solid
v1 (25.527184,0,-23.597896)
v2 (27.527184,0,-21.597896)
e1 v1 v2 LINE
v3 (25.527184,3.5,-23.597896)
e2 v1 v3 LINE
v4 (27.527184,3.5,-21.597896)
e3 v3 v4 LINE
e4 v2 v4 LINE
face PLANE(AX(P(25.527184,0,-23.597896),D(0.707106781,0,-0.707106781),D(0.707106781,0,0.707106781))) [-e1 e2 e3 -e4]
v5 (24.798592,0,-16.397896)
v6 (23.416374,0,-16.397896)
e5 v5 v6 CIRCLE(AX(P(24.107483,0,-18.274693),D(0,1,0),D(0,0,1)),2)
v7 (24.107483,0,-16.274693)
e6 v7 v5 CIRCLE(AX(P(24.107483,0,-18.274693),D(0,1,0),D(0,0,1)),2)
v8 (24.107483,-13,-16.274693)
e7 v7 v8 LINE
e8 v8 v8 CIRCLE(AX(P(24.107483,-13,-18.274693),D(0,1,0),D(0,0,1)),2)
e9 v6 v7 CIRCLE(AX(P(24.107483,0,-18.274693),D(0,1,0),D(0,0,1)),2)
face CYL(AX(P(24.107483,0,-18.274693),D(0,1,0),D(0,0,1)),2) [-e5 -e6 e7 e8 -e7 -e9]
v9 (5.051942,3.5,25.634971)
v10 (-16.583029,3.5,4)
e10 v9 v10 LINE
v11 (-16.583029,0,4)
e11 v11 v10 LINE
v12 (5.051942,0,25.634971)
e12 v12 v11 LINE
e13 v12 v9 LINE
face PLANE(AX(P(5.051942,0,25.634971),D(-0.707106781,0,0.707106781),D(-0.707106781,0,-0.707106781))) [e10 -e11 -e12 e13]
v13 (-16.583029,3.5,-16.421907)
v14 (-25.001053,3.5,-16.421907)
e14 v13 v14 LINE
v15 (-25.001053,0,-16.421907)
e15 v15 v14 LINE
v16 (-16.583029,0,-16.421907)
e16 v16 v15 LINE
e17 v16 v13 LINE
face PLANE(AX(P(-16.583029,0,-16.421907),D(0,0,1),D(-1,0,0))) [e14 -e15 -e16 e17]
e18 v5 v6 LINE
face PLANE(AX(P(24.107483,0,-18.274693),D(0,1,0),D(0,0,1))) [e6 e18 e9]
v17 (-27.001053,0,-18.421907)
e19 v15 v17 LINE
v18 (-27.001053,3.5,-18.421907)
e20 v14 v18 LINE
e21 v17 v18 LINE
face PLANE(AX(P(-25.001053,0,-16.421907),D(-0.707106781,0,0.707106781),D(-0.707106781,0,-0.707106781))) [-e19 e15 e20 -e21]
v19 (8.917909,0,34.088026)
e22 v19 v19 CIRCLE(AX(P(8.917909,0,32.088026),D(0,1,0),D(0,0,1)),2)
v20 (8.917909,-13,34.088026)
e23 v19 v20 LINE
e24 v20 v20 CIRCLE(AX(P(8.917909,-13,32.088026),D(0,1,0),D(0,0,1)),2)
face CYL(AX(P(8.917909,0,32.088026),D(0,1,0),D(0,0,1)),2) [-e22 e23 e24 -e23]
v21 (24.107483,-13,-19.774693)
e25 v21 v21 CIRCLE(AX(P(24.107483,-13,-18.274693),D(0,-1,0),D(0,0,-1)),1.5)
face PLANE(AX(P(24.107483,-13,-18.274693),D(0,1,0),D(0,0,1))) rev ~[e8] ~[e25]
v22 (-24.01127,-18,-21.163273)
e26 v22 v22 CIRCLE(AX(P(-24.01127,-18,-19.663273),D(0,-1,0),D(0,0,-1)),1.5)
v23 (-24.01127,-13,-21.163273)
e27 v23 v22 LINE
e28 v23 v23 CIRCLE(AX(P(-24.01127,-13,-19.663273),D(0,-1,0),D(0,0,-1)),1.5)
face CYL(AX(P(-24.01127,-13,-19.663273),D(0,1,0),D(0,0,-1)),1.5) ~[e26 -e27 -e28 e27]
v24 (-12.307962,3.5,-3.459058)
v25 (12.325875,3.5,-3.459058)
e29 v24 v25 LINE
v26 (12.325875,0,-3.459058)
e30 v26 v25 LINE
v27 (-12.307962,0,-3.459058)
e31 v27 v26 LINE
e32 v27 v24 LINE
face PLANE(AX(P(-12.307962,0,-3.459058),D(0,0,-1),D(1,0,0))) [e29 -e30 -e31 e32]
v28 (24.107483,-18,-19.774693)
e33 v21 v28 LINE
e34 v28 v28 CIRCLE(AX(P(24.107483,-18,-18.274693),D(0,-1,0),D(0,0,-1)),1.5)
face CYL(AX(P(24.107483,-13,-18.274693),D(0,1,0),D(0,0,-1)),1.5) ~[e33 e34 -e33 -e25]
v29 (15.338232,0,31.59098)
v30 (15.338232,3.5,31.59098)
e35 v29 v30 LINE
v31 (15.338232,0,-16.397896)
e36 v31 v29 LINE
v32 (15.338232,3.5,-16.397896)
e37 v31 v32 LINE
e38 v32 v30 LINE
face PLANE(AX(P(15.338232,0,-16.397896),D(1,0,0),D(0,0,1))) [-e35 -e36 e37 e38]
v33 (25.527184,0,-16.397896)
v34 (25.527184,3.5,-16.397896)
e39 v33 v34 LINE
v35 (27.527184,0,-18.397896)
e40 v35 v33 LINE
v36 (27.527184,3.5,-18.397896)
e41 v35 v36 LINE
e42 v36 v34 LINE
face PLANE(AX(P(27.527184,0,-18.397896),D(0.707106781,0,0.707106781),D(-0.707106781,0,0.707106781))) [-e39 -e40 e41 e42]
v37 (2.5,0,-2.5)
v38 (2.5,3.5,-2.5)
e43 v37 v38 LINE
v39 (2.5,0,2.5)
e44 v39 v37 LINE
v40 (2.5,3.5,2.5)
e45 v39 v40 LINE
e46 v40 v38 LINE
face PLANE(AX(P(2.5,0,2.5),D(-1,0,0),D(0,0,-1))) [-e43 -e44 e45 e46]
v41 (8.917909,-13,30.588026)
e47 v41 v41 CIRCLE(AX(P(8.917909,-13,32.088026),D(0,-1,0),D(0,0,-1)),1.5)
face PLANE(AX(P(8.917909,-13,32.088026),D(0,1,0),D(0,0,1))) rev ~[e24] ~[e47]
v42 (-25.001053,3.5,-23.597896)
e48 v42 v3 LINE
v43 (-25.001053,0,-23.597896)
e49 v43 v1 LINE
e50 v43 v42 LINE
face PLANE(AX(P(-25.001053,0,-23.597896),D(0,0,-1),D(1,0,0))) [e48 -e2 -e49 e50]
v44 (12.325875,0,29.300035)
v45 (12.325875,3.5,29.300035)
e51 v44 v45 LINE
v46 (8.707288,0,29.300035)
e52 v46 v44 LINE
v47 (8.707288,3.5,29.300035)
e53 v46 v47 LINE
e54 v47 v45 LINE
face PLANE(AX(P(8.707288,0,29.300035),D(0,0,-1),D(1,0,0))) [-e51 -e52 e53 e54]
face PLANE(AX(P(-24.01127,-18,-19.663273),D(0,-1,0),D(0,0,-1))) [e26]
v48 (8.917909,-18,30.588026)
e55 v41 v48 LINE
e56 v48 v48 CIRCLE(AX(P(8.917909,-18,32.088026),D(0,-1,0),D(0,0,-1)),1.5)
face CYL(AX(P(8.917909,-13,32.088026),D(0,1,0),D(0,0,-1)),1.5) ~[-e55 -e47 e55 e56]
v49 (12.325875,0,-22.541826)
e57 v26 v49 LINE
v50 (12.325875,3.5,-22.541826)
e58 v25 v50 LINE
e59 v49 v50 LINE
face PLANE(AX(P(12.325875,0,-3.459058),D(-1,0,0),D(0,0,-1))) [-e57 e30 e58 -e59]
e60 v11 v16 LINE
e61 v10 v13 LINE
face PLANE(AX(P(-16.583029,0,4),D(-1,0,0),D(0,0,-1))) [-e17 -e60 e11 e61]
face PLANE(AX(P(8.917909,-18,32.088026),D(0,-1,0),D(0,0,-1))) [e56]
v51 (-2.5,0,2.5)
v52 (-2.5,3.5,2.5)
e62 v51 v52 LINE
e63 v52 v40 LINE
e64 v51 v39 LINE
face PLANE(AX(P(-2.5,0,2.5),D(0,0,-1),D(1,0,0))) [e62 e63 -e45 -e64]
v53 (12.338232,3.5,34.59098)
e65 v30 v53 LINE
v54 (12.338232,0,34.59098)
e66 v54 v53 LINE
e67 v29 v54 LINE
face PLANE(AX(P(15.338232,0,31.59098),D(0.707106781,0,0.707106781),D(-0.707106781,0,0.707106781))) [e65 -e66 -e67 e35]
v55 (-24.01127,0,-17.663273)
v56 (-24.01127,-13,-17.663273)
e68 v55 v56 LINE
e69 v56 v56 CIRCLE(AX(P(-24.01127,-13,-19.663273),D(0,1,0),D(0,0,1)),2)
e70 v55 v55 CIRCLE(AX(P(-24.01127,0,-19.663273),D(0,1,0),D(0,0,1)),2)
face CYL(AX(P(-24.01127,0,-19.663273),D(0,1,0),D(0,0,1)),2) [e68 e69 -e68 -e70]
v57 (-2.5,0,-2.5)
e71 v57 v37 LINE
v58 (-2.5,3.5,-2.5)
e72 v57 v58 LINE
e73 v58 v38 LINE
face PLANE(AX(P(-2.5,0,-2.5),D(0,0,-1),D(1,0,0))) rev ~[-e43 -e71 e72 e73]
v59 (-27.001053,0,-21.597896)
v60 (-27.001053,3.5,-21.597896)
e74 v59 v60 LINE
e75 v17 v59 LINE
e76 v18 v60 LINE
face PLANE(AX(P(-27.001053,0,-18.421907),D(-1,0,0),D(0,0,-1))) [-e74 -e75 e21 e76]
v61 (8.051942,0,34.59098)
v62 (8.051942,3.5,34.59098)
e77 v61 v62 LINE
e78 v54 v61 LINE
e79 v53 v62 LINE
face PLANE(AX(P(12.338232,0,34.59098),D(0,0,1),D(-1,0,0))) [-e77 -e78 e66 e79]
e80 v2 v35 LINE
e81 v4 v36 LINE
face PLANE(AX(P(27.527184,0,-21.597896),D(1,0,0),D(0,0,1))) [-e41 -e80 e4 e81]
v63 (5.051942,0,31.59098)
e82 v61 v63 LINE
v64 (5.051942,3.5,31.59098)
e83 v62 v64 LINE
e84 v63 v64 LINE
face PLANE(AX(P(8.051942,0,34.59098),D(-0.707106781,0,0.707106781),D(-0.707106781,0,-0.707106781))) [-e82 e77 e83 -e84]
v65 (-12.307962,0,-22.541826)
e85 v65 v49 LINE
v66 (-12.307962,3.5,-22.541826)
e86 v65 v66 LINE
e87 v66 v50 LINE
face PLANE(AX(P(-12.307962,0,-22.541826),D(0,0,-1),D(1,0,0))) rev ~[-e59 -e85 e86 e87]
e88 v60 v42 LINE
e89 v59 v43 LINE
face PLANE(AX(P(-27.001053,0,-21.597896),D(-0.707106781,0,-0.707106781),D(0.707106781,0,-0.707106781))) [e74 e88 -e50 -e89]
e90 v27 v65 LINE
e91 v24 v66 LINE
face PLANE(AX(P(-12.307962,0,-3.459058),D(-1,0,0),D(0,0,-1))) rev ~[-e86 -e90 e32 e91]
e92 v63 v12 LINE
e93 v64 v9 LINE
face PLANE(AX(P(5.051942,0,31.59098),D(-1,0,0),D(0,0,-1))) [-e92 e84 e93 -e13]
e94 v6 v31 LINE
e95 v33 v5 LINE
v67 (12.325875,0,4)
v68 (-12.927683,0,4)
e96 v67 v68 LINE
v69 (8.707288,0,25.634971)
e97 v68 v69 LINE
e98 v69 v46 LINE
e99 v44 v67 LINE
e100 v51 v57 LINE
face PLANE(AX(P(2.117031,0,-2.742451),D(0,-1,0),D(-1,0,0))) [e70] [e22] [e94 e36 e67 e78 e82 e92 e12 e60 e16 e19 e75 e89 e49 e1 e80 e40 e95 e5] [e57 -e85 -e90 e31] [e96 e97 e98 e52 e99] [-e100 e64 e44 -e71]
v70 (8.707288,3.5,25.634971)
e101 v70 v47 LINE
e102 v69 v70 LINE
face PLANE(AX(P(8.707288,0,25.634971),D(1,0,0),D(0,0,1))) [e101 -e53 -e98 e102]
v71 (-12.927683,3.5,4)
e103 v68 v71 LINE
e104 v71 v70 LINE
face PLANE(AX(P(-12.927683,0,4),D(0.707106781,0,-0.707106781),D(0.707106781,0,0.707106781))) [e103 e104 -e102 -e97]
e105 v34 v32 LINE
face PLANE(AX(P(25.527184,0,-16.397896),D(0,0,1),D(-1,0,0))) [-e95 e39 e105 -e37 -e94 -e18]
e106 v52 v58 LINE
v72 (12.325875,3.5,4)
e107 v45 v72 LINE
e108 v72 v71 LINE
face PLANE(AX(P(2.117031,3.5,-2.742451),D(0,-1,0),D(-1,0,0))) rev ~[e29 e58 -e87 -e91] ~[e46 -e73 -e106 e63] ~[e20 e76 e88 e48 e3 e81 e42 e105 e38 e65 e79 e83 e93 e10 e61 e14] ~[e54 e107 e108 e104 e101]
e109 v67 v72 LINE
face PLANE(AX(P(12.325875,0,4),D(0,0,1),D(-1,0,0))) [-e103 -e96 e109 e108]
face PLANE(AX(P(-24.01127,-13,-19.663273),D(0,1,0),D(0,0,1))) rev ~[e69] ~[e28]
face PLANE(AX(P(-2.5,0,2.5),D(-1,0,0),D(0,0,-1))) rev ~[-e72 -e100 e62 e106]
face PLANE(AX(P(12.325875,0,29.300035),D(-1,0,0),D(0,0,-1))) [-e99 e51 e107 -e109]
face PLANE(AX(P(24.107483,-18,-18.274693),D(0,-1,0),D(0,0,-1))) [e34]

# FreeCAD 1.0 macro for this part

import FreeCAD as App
import Part
import Sketcher

doc = App.newDocument("Part")
body = doc.addObject("PartDesign::Body", "Body")

sketch1 = body.newObject("Sketcher::SketchObject", "Sketch")
sketch1.AttachmentSupport = (doc.getObject("XZ_Plane"), [""])
sketch1.MapMode = "FlatFace"
sketch1.addGeometry([
    Part.LineSegment(App.Vector(25.527184, -23.597896, 0), App.Vector(-25.001053, -23.597896, 0)),
    Part.LineSegment(App.Vector(-25.001053, -23.597896, 0), App.Vector(-27.001053, -21.597896, 0)),
    Part.LineSegment(App.Vector(-27.001053, -21.597896, 0), App.Vector(-27.001053, -18.421907, 0)),
    Part.LineSegment(App.Vector(-27.001053, -18.421907, 0), App.Vector(-25.001053, -16.421907, 0)),
    Part.LineSegment(App.Vector(-25.001053, -16.421907, 0), App.Vector(-16.583029, -16.421907, 0)),
    Part.LineSegment(App.Vector(-16.583029, -16.421907, 0), App.Vector(-16.583029, 4, 0)),
    Part.LineSegment(App.Vector(-16.583029, 4, 0), App.Vector(5.051942, 25.634971, 0)),
    Part.LineSegment(App.Vector(5.051942, 25.634971, 0), App.Vector(5.051942, 31.59098, 0)),
    Part.LineSegment(App.Vector(5.051942, 31.59098, 0), App.Vector(8.051942, 34.59098, 0)),
    Part.LineSegment(App.Vector(8.051942, 34.59098, 0), App.Vector(12.338232, 34.59098, 0)),
    Part.LineSegment(App.Vector(12.338232, 34.59098, 0), App.Vector(15.338232, 31.59098, 0)),
    Part.LineSegment(App.Vector(15.338232, 31.59098, 0), App.Vector(15.338232, -16.397896, 0)),
    Part.LineSegment(App.Vector(15.338232, -16.397896, 0), App.Vector(25.527184, -16.397896, 0)),
    Part.LineSegment(App.Vector(25.527184, -16.397896, 0), App.Vector(27.527184, -18.397896, 0)),
    Part.LineSegment(App.Vector(27.527184, -18.397896, 0), App.Vector(27.527184, -21.597896, 0)),
    Part.LineSegment(App.Vector(27.527184, -21.597896, 0), App.Vector(25.527184, -23.597896, 0)),
    Part.LineSegment(App.Vector(-12.927683, 4, 0), App.Vector(12.325875, 4, 0)),
    Part.LineSegment(App.Vector(12.325875, 4, 0), App.Vector(12.325875, 29.300035, 0)),
    Part.LineSegment(App.Vector(12.325875, 29.300035, 0), App.Vector(8.707288, 29.300035, 0)),
    Part.LineSegment(App.Vector(8.707288, 29.300035, 0), App.Vector(8.707288, 25.634971, 0)),
    Part.LineSegment(App.Vector(8.707288, 25.634971, 0), App.Vector(-12.927683, 4, 0)),
    Part.LineSegment(App.Vector(-2.5, 2.5, 0), App.Vector(-2.5, -2.5, 0)),
    Part.LineSegment(App.Vector(-2.5, -2.5, 0), App.Vector(2.5, -2.5, 0)),
    Part.LineSegment(App.Vector(2.5, -2.5, 0), App.Vector(2.5, 2.5, 0)),
    Part.LineSegment(App.Vector(2.5, 2.5, 0), App.Vector(-2.5, 2.5, 0)),
    Part.LineSegment(App.Vector(-12.307962, -3.459058, 0), App.Vector(-12.307962, -22.541826, 0)),
    Part.LineSegment(App.Vector(-12.307962, -22.541826, 0), App.Vector(12.325875, -22.541826, 0)),
    Part.LineSegment(App.Vector(12.325875, -22.541826, 0), App.Vector(12.325875, -3.459058, 0)),
    Part.LineSegment(App.Vector(12.325875, -3.459058, 0), App.Vector(-12.307962, -3.459058, 0)),
], False)
sketch1.addConstraint([
    Sketcher.Constraint("Coincident", 0, 2, 1, 1),
    Sketcher.Constraint("Coincident", 1, 2, 2, 1),
    Sketcher.Constraint("Coincident", 2, 2, 3, 1),
    Sketcher.Constraint("Coincident", 3, 2, 4, 1),
    Sketcher.Constraint("Coincident", 4, 2, 5, 1),
    Sketcher.Constraint("Coincident", 5, 2, 6, 1),
    Sketcher.Constraint("Coincident", 6, 2, 7, 1),
    Sketcher.Constraint("Coincident", 7, 2, 8, 1),
    Sketcher.Constraint("Coincident", 8, 2, 9, 1),
    Sketcher.Constraint("Coincident", 9, 2, 10, 1),
    Sketcher.Constraint("Coincident", 10, 2, 11, 1),
    Sketcher.Constraint("Coincident", 11, 2, 12, 1),
    Sketcher.Constraint("Coincident", 12, 2, 13, 1),
    Sketcher.Constraint("Coincident", 13, 2, 14, 1),
    Sketcher.Constraint("Coincident", 14, 2, 15, 1),
    Sketcher.Constraint("Coincident", 15, 2, 0, 1),
    Sketcher.Constraint("Coincident", 16, 2, 17, 1),
    Sketcher.Constraint("Coincident", 17, 2, 18, 1),
    Sketcher.Constraint("Coincident", 18, 2, 19, 1),
    Sketcher.Constraint("Coincident", 19, 2, 20, 1),
    Sketcher.Constraint("Coincident", 20, 2, 16, 1),
    Sketcher.Constraint("Coincident", 21, 2, 22, 1),
    Sketcher.Constraint("Coincident", 22, 2, 23, 1),
    Sketcher.Constraint("Coincident", 23, 2, 24, 1),
    Sketcher.Constraint("Coincident", 24, 2, 21, 1),
    Sketcher.Constraint("Coincident", 25, 2, 26, 1),
    Sketcher.Constraint("Coincident", 26, 2, 27, 1),
    Sketcher.Constraint("Coincident", 27, 2, 28, 1),
    Sketcher.Constraint("Coincident", 28, 2, 25, 1),
    Sketcher.Constraint("Horizontal", 0),
    Sketcher.Constraint("Vertical", 2),
    Sketcher.Constraint("Horizontal", 4),
    Sketcher.Constraint("Vertical", 5),
    Sketcher.Constraint("Vertical", 7),
    Sketcher.Constraint("Horizontal", 9),
    Sketcher.Constraint("Vertical", 11),
    Sketcher.Constraint("Horizontal", 12),
    Sketcher.Constraint("Vertical", 14),
    Sketcher.Constraint("Horizontal", 16),
    Sketcher.Constraint("Vertical", 17),
    Sketcher.Constraint("Horizontal", 18),
    Sketcher.Constraint("Vertical", 19),
    Sketcher.Constraint("Vertical", 21),
    Sketcher.Constraint("Horizontal", 22),
    Sketcher.Constraint("Vertical", 23),
    Sketcher.Constraint("Horizontal", 24),
    Sketcher.Constraint("Vertical", 25),
    Sketcher.Constraint("Horizontal", 26),
    Sketcher.Constraint("Vertical", 27),
    Sketcher.Constraint("Horizontal", 28),
    Sketcher.Constraint("Symmetric", 21, 2, 23, 2, -1, 1),
    Sketcher.Constraint("Perpendicular", 1, 3),
    Sketcher.Constraint("Parallel", 3, 6),
    Sketcher.Constraint("Parallel", 6, 8),
    Sketcher.Constraint("Perpendicular", 8, 10),
    Sketcher.Constraint("Parallel", 10, 13),
    Sketcher.Constraint("Perpendicular", 13, 15),
    Sketcher.Constraint("Parallel", 15, 20),
    Sketcher.Constraint("Horizontal", 7, 2, 10, 2),
    Sketcher.Constraint("Horizontal", 1, 2, 14, 2),
    Sketcher.Constraint("Horizontal", 5, 2, 16, 2),
    Sketcher.Constraint("Horizontal", 6, 2, 19, 2),
    Sketcher.Constraint("Vertical", 0, 2, 3, 2),
    Sketcher.Constraint("Vertical", 12, 2, 15, 2),
    Sketcher.Constraint("Vertical", 17, 2, 26, 2),
    Sketcher.Constraint("Equal", 24, 21),
    Sketcher.Constraint("Equal", 1, 3),
    Sketcher.Constraint("DistanceX", 22, 1, 22, 2, 5.0),
    Sketcher.Constraint("DistanceY", 14, 2, 14, 1, 3.2),
    Sketcher.Constraint("DistanceY", -1, 1, 5, 2, 4.0),
    Sketcher.Constraint("DistanceX", 1, 2, 0, 2, 2.0),
    Sketcher.Constraint("DistanceX", 7, 2, 8, 2, 3.0),
    Sketcher.Constraint("DistanceX", 9, 1, 9, 2, 4.286289),
    Sketcher.Constraint("DistanceX", 16, 1, 16, 2, 25.253558),
    Sketcher.Constraint("DistanceY", 2, 1, 2, 2, 3.175989),
    Sketcher.Constraint("DistanceY", 7, 1, 7, 2, 5.956009),
    Sketcher.Constraint("DistanceY", 25, 2, 25, 1, 19.082768),
    Sketcher.Constraint("Distance", 6, 30.59647),
    Sketcher.Constraint("DistanceX", 0, 2, 0, 1, 50.528237),
    Sketcher.Constraint("DistanceX", 4, 1, 4, 2, 8.418024),
    Sketcher.Constraint("DistanceX", 26, 1, 26, 2, 24.633837),
    Sketcher.Constraint("DistanceY", 5, 1, 5, 2, 20.421907),
    Sketcher.Constraint("DistanceY", 17, 1, 17, 2, 25.300035),
    Sketcher.Constraint("DistanceX", 4, 2, -1, 1, 16.583029),
    Sketcher.Constraint("DistanceX", -1, 1, 18, 2, 8.707288),
    Sketcher.Constraint("DistanceY", 25, 2, 4, 2, 6.119919),
])
pad1 = body.newObject("PartDesign::Pad", "Pad")
pad1.Profile = sketch1
pad1.Length = 3.5
pad1.Reversed = True

sketch2 = body.newObject("Sketcher::SketchObject", "Sketch001")
sketch2.AttachmentSupport = (doc.getObject("XZ_Plane"), [""])
sketch2.MapMode = "FlatFace"
sketch2.addGeometry([
    Part.Circle(App.Vector(-24.01127, -19.663273, 0), App.Vector(0, 0, 1), 2),
    Part.Circle(App.Vector(24.107483, -18.274693, 0), App.Vector(0, 0, 1), 2),
    Part.Circle(App.Vector(8.917909, 32.088026, 0), App.Vector(0, 0, 1), 2),
], False)
sketch2.addConstraint([
    Sketcher.Constraint("Equal", 0, 1),
    Sketcher.Constraint("Equal", 1, 2),
    Sketcher.Constraint("Diameter", 0, 4.0),
    Sketcher.Constraint("DistanceY", 0, 3, 2, 3, 51.7513),
    Sketcher.Constraint("DistanceX", 0, 3, -1, 1, 24.01127),
    Sketcher.Constraint("DistanceX", -1, 1, 2, 3, 8.917909),
    Sketcher.Constraint("DistanceY", 0, 3, 1, 3, 1.38858),
    Sketcher.Constraint("DistanceY", 0, 3, -1, 1, 19.663273),
    Sketcher.Constraint("DistanceX", -1, 1, 1, 3, 24.107483),
])
pad2 = body.newObject("PartDesign::Pad", "Pad001")
pad2.Profile = sketch2
pad2.Length = 13

sketch3 = body.newObject("Sketcher::SketchObject", "Sketch002")
sketch3.AttachmentSupport = (doc.getObject("XZ_Plane"), [""])
sketch3.MapMode = "FlatFace"
sketch3.AttachmentOffset = App.Placement(App.Vector(0, 0, 13), App.Rotation())
sketch3.addGeometry([
    Part.Circle(App.Vector(-24.01127, -19.663273, 0), App.Vector(0, 0, 1), 1.5),
    Part.Circle(App.Vector(8.917909, 32.088026, 0), App.Vector(0, 0, 1), 1.5),
    Part.Circle(App.Vector(24.107483, -18.274693, 0), App.Vector(0, 0, 1), 1.5),
], False)
sketch3.addConstraint([
    Sketcher.Constraint("Equal", 0, 1),
    Sketcher.Constraint("Equal", 1, 2),
    Sketcher.Constraint("Diameter", 0, 3.0),
    Sketcher.Constraint("DistanceY", 0, 3, 1, 3, 51.7513),
    Sketcher.Constraint("DistanceX", 0, 3, -1, 1, 24.01127),
    Sketcher.Constraint("DistanceX", -1, 1, 1, 3, 8.917909),
    Sketcher.Constraint("DistanceY", 0, 3, 2, 3, 1.38858),
    Sketcher.Constraint("DistanceY", 0, 3, -1, 1, 19.663273),
    Sketcher.Constraint("DistanceX", -1, 1, 2, 3, 24.107483),
])
pad3 = body.newObject("PartDesign::Pad", "Pad002")
pad3.Profile = sketch3
pad3.Length = 5

doc.recompute()
